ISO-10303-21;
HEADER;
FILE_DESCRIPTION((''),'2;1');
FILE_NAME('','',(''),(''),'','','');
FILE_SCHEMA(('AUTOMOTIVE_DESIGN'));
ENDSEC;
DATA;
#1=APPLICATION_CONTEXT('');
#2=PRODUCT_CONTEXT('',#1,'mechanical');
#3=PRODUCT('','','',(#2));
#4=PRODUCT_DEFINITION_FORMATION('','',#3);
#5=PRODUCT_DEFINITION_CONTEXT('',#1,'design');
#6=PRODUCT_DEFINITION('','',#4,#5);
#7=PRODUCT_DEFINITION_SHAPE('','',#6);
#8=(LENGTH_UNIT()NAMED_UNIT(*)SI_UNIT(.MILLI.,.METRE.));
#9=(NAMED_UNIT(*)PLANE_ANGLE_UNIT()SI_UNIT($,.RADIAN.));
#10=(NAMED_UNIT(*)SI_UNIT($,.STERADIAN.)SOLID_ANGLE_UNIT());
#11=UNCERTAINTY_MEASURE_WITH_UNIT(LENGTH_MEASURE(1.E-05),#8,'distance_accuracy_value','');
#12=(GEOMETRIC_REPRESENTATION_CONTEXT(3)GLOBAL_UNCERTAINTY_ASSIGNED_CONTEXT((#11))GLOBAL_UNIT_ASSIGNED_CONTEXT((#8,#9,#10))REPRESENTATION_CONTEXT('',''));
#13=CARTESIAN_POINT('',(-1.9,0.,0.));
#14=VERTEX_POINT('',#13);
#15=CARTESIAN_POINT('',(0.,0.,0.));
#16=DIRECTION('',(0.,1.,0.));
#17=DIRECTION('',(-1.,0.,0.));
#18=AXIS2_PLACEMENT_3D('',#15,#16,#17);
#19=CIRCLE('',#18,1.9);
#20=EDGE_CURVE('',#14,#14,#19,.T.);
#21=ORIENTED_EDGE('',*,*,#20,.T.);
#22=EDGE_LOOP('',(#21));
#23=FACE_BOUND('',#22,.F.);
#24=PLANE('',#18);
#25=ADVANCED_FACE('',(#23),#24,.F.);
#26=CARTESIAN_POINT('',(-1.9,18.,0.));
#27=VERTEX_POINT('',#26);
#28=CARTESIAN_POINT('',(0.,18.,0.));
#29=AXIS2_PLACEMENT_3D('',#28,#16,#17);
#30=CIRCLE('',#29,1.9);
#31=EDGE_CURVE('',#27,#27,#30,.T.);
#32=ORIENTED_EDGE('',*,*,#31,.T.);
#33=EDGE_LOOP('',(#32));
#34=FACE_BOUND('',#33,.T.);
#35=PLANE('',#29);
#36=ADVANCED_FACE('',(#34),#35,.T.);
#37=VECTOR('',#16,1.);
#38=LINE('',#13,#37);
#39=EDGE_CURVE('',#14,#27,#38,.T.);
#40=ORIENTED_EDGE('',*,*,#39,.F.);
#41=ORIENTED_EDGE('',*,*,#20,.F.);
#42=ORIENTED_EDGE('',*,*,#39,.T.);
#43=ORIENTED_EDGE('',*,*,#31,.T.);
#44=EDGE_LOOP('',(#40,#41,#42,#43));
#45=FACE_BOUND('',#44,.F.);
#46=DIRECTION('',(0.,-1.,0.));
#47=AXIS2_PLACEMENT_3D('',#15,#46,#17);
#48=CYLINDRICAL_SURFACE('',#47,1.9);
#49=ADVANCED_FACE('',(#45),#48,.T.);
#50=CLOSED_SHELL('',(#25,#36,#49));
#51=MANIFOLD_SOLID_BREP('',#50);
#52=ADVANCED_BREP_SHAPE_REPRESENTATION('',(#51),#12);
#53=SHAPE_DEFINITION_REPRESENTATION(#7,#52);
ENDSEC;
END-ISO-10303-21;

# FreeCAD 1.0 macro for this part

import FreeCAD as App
import Part
import Sketcher
from FreeCAD import Vector

doc = App.newDocument("Part")
body = doc.addObject("PartDesign::Body", "Body")

sketch1 = body.newObject("Sketcher::SketchObject", "Sketch")
sketch1.AttachmentSupport = (doc.getObject("XZ_Plane"), [""])
sketch1.MapMode = "FlatFace"
sketch1.addGeometry(Part.Circle(Vector(0, 0, 0), Vector(0, 0, 1), 1.9), False)
sketch1.addConstraint([
    Sketcher.Constraint("Coincident", 0, 3, -1, 1),
    Sketcher.Constraint("Diameter", 0, 3.8),
])
pad1 = body.newObject("PartDesign::Pad", "Pad")
pad1.Profile = sketch1
pad1.Length = 18
pad1.Reversed = True

doc.recompute()
